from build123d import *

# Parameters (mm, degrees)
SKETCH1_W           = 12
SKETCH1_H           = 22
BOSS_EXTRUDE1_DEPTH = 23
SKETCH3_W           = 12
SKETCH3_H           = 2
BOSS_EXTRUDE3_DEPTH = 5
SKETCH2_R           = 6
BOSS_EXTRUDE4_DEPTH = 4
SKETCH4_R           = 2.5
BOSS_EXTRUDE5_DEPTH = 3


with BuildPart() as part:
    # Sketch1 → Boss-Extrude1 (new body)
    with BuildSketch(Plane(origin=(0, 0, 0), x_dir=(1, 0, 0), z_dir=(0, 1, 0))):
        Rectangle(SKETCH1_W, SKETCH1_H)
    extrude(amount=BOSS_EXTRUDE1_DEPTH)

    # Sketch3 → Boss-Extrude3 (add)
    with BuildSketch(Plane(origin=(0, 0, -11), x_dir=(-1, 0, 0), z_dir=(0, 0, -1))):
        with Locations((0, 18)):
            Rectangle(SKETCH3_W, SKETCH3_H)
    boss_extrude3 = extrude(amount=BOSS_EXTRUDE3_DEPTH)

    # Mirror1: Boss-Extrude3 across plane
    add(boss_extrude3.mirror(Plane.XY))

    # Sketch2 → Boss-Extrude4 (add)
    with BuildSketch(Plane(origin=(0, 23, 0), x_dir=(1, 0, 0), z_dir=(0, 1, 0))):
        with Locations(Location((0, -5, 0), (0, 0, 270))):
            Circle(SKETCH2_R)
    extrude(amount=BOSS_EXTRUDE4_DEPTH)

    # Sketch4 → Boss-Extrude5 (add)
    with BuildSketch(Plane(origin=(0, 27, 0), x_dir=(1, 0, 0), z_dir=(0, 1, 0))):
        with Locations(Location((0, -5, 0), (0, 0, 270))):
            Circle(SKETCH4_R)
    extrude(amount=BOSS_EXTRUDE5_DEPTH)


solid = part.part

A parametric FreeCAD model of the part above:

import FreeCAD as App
import Part
import Sketcher
from FreeCAD import Vector


def add_polygon(sketch, points):
    """Adds a closed chain of lines whose ends are joined by coincident constraints."""
    first, n = sketch.GeometryCount, len(points)
    for a, b in zip(points, points[1:] + points[:1]):
        sketch.addGeometry(Part.LineSegment(App.Vector(*a, 0), App.Vector(*b, 0)), False)
    for i in range(n):
        sketch.addConstraint(Sketcher.Constraint("Coincident", first + i, 2, first + (i + 1) % n, 1))

doc = App.newDocument("Part")
params = doc.addObject("Spreadsheet::Sheet", "Params")
for row, (alias, value) in enumerate([
    ("sketch1_width", "12 mm"),
    ("sketch1_height", "22 mm"),
    ("pad1_length", "23 mm"),
    ("sketch2_width", "12 mm"),
    ("sketch2_height", "2 mm"),
    ("pad2_length", "5 mm"),
    ("sketch3_diameter", "12 mm"),
    ("pad3_length", "4 mm"),
    ("sketch4_diameter", "5 mm"),
    ("pad4_length", "3 mm"),
], start=1):
    params.set(f"A{row}", alias)
    params.set(f"B{row}", "=" + value)
    params.setAlias(f"B{row}", alias)

body = doc.addObject("PartDesign::Body", "Body")

# Sketch on XZ plane
sketch1 = doc.addObject("Sketcher::SketchObject", "Sketch")
body.addObject(sketch1)
sketch1.AttachmentSupport = (doc.XZ_Plane, [""])
sketch1.MapMode = "FlatFace"
add_polygon(sketch1, [(-6, -11), (-6, 11), (6, 11), (6, -11)])  # lines 0-3
sketch1.addConstraint(Sketcher.Constraint("Vertical", 0))
sketch1.addConstraint(Sketcher.Constraint("Horizontal", 1))
sketch1.addConstraint(Sketcher.Constraint("Vertical", 2))
sketch1.addConstraint(Sketcher.Constraint("Horizontal", 3))
sketch1.addConstraint(Sketcher.Constraint("Symmetric", 0, 2, 2, 2, -1, 1))
sketch1.addConstraint(Sketcher.Constraint("DistanceX", 1, 1, 1, 2, 12.0))
sketch1.addConstraint(Sketcher.Constraint("DistanceY", 0, 1, 0, 2, 22.0))
sketch1.setExpression("Constraints[9]", "Params.sketch1_width")
sketch1.setExpression("Constraints[10]", "Params.sketch1_height")
pad1 = doc.addObject("PartDesign::Pad", "Pad")
body.addObject(pad1)
pad1.Profile = sketch1
pad1.setExpression("Length", "Params.pad1_length")
pad1.Reversed = True

# Sketch on XY plane
sketch2 = doc.addObject("Sketcher::SketchObject", "Sketch001")
body.addObject(sketch2)
sketch2.AttachmentSupport = (doc.XY_Plane, [""])
sketch2.MapMode = "FlatFace"
sketch2.AttachmentOffset = App.Placement(Vector(0, 0, -11), App.Rotation())
add_polygon(sketch2, [(6, 19), (6, 17), (-6, 17), (-6, 19)])  # lines 0-3
sketch2.addConstraint(Sketcher.Constraint("Vertical", 0))
sketch2.addConstraint(Sketcher.Constraint("Horizontal", 1))
sketch2.addConstraint(Sketcher.Constraint("Vertical", 2))
sketch2.addConstraint(Sketcher.Constraint("Horizontal", 3))
sketch2.addConstraint(Sketcher.Constraint("DistanceX", 1, 2, 1, 1, 12.0))
sketch2.addConstraint(Sketcher.Constraint("DistanceY", 0, 2, 0, 1, 2.0))
sketch2.addConstraint(Sketcher.Constraint("DistanceX", -1, 1, 0, 2, 6.0))
sketch2.addConstraint(Sketcher.Constraint("DistanceY", -1, 1, 0, 2, 17.0))
sketch2.setExpression("Constraints[8]", "Params.sketch2_width")
sketch2.setExpression("Constraints[9]", "Params.sketch2_height")
pad2 = doc.addObject("PartDesign::Pad", "Pad001")
body.addObject(pad2)
pad2.Profile = sketch2
pad2.setExpression("Length", "Params.pad2_length")
pad2.Reversed = True
doc.recompute()

mirrored = doc.addObject("PartDesign::Mirrored", "Mirrored")
body.addObject(mirrored)
mirrored.Originals = [pad2]
mirrored.MirrorPlane = (doc.XY_Plane, [""])
body.Tip = mirrored

# Sketch on XZ plane
sketch3 = doc.addObject("Sketcher::SketchObject", "Sketch002")
body.addObject(sketch3)
sketch3.AttachmentSupport = (doc.XZ_Plane, [""])
sketch3.MapMode = "FlatFace"
sketch3.AttachmentOffset = App.Placement(Vector(0, 0, -23), App.Rotation())
sketch3.addGeometry(Part.Circle(Vector(0, 5, 0), Vector(0, 0, 1), 6), False)
sketch3.addConstraint(Sketcher.Constraint("PointOnObject", 0, 3, -2))
sketch3.addConstraint(Sketcher.Constraint("Diameter", 0, 12.0))
sketch3.addConstraint(Sketcher.Constraint("DistanceY", -1, 1, 0, 3, 5.0))
sketch3.setExpression("Constraints[1]", "Params.sketch3_diameter")
pad3 = doc.addObject("PartDesign::Pad", "Pad002")
body.addObject(pad3)
pad3.Profile = sketch3
pad3.setExpression("Length", "Params.pad3_length")
pad3.Reversed = True

# Sketch on XZ plane
sketch4 = doc.addObject("Sketcher::SketchObject", "Sketch003")
body.addObject(sketch4)
sketch4.AttachmentSupport = (doc.XZ_Plane, [""])
sketch4.MapMode = "FlatFace"
sketch4.AttachmentOffset = App.Placement(Vector(0, 0, -27), App.Rotation())
sketch4.addGeometry(Part.Circle(Vector(0, 5, 0), Vector(0, 0, 1), 2.5), False)
sketch4.addConstraint(Sketcher.Constraint("PointOnObject", 0, 3, -2))
sketch4.addConstraint(Sketcher.Constraint("Diameter", 0, 5.0))
sketch4.addConstraint(Sketcher.Constraint("DistanceY", -1, 1, 0, 3, 5.0))
sketch4.setExpression("Constraints[1]", "Params.sketch4_diameter")
pad4 = doc.addObject("PartDesign::Pad", "Pad003")
body.addObject(pad4)
pad4.Profile = sketch4
pad4.setExpression("Length", "Params.pad4_length")
pad4.Reversed = True

doc.recompute()
